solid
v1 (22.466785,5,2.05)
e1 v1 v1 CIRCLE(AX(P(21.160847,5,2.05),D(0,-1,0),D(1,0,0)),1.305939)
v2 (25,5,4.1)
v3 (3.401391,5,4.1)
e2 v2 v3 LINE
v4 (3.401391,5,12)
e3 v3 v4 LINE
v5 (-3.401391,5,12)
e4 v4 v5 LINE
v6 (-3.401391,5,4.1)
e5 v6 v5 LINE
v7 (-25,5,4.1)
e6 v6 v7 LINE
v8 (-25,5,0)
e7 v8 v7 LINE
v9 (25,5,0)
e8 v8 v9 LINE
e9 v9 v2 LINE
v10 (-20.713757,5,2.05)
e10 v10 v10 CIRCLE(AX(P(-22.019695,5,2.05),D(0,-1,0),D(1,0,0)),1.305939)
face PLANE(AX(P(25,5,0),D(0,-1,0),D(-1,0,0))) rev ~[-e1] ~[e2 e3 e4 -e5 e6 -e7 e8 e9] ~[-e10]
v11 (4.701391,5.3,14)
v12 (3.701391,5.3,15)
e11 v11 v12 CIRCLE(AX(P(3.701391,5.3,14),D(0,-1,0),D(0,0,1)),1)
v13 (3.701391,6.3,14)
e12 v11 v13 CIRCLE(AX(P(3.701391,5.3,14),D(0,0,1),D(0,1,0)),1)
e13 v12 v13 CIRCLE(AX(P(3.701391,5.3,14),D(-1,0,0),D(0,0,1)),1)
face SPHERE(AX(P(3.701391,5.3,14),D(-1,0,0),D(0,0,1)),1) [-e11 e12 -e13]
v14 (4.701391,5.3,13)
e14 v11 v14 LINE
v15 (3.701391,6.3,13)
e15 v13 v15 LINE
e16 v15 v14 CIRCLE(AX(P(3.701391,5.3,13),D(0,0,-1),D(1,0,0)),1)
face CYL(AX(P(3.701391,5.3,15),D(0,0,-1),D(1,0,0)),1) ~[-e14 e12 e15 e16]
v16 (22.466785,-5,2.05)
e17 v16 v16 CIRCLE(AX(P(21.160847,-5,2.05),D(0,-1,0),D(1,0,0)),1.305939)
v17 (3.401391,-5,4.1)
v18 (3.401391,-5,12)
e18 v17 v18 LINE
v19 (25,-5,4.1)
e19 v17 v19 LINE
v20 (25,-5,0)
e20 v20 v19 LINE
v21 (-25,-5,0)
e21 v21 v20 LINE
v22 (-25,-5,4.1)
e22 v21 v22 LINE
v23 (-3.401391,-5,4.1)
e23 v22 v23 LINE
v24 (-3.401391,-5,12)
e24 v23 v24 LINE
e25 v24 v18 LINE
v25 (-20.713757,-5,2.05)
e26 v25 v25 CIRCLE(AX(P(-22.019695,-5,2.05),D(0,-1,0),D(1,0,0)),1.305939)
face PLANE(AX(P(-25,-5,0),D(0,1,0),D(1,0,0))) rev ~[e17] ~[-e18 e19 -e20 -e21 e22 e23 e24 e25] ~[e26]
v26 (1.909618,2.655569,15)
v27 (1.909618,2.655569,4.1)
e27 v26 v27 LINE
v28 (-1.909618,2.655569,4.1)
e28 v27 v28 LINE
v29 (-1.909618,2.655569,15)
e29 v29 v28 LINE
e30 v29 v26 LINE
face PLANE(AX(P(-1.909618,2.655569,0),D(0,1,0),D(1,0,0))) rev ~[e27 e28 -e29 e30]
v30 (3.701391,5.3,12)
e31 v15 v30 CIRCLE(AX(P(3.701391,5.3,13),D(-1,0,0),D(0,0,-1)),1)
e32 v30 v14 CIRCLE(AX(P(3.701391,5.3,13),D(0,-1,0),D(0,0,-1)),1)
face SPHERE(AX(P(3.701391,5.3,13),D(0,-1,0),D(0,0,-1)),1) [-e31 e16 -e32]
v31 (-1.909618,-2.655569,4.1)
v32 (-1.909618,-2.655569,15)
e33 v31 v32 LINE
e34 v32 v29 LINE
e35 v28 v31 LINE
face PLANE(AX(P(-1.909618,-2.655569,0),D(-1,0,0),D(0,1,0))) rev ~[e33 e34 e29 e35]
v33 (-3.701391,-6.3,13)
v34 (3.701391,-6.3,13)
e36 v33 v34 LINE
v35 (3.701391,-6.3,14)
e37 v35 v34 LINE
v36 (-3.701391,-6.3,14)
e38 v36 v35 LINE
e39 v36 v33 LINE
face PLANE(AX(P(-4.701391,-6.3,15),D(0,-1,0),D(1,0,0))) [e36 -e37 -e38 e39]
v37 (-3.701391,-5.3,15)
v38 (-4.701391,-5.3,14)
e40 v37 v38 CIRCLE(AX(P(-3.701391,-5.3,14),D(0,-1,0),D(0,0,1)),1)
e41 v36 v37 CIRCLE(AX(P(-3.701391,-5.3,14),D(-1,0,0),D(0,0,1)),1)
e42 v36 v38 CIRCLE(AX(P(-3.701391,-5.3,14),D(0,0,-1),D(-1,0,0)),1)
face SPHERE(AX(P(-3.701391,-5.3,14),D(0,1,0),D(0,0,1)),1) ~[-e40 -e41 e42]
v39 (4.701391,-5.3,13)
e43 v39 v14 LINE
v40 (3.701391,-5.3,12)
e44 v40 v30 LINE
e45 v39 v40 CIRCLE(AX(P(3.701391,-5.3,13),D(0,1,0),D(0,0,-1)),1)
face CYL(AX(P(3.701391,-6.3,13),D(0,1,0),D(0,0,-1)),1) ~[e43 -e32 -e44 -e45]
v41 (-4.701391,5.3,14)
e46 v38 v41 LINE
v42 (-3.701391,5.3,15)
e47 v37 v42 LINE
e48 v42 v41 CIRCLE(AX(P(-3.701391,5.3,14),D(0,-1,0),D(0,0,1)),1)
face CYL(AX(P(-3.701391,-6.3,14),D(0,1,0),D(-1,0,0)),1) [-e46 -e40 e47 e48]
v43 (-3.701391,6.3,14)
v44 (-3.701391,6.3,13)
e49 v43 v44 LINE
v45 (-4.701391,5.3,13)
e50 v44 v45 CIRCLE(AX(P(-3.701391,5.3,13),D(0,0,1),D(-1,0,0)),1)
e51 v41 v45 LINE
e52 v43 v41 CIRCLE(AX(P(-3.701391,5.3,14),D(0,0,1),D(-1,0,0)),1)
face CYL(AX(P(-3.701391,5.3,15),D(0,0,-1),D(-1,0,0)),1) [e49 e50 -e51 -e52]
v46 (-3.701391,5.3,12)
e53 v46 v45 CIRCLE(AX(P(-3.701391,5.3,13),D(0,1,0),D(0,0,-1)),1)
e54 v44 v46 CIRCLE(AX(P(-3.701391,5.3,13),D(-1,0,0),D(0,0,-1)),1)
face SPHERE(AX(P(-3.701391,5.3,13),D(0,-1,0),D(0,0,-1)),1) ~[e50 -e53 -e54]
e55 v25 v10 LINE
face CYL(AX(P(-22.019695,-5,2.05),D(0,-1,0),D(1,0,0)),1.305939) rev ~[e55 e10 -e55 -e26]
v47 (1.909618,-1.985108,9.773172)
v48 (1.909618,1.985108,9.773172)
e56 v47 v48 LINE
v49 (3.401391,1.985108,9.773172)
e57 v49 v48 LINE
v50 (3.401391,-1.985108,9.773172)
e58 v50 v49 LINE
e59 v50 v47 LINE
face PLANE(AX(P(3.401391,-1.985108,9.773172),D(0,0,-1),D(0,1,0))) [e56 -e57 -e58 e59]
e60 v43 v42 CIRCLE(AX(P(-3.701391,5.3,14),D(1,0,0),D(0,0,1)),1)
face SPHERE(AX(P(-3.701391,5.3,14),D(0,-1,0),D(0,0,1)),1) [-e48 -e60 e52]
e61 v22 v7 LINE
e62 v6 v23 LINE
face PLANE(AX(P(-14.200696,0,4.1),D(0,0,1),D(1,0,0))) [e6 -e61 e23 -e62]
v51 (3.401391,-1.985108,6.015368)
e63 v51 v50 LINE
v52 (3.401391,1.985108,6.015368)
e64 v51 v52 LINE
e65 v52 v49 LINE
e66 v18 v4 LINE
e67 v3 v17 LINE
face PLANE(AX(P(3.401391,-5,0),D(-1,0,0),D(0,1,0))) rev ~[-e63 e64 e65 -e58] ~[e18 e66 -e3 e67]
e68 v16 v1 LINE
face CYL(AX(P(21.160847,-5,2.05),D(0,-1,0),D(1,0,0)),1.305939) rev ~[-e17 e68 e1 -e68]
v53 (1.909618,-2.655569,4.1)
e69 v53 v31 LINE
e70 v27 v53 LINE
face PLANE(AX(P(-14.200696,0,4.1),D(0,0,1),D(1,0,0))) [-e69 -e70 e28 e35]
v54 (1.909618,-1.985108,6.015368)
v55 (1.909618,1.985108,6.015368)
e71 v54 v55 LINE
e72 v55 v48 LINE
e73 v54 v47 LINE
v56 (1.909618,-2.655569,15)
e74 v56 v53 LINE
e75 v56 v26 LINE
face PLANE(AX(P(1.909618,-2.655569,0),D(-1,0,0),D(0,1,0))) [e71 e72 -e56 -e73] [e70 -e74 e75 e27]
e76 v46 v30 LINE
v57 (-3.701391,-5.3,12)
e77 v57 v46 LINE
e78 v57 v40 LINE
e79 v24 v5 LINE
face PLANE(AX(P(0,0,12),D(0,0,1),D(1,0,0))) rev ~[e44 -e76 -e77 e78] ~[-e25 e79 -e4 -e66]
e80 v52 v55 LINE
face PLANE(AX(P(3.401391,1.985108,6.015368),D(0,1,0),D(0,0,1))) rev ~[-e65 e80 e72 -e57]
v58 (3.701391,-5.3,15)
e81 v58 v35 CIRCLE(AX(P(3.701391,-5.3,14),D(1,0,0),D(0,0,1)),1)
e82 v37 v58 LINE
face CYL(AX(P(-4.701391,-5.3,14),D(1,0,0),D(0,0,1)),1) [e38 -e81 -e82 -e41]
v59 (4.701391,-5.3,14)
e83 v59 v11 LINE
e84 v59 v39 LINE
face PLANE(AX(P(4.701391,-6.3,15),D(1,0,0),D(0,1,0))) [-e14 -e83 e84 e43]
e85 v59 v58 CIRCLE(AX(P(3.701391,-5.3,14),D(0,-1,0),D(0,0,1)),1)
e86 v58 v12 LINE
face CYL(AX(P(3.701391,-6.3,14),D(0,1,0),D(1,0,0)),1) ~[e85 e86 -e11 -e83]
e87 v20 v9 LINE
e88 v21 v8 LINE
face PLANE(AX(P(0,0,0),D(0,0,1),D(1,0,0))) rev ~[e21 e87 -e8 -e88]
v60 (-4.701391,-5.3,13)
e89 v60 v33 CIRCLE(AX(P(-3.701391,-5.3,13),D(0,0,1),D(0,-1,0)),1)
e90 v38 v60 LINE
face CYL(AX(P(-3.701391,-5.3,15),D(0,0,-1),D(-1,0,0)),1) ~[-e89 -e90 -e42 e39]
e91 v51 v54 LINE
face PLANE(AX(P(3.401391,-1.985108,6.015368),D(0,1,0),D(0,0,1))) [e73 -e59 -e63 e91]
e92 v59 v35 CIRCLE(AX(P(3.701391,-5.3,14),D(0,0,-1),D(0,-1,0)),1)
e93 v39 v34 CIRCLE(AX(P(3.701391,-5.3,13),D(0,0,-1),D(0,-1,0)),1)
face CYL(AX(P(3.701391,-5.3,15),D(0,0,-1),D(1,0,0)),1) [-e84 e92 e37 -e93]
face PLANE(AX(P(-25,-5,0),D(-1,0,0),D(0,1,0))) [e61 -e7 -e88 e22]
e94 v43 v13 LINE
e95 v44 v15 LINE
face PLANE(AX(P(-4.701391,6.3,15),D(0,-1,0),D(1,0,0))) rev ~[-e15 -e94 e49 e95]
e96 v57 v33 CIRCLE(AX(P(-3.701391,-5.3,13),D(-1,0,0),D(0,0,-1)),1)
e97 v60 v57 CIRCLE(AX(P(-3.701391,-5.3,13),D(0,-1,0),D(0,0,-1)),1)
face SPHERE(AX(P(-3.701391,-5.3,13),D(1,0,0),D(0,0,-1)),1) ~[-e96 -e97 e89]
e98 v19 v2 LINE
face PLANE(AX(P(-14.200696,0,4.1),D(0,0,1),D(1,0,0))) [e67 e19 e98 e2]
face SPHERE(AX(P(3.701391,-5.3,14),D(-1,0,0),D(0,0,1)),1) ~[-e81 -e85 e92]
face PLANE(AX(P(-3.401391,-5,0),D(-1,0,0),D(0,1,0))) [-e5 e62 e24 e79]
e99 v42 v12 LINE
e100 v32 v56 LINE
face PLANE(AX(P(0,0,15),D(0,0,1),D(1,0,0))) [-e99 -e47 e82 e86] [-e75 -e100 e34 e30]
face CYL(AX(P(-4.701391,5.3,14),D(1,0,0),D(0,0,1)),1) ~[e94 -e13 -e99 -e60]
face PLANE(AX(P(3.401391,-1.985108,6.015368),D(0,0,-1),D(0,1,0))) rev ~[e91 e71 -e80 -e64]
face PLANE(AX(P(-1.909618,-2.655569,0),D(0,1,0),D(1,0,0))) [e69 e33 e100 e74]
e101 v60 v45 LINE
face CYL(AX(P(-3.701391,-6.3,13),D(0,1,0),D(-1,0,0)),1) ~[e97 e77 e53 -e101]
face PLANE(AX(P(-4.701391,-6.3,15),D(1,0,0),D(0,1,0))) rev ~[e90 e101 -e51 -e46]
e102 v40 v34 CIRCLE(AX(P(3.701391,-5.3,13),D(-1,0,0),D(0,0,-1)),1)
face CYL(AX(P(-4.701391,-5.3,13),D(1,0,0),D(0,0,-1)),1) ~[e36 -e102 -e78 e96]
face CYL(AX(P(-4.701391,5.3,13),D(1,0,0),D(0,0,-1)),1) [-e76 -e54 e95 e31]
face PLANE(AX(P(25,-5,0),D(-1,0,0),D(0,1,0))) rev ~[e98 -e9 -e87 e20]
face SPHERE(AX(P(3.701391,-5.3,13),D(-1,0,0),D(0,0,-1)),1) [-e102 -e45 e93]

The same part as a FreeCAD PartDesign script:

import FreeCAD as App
import Part
import Sketcher
from FreeCAD import Vector


def edges_at(feature, points):
    """Names of the edges that pass closest to the given points."""
    edges = feature.Shape.Edges
    near = lambda p: min(range(len(edges)), key=lambda i: edges[i].distToShape(Part.Vertex(*p))[0])
    return sorted({f"Edge{near(p) + 1}" for p in points})


def add_polygon(sketch, points):
    """Adds a closed chain of lines whose ends are joined by coincident constraints."""
    first, n = sketch.GeometryCount, len(points)
    for a, b in zip(points, points[1:] + points[:1]):
        sketch.addGeometry(Part.LineSegment(App.Vector(*a, 0), App.Vector(*b, 0)), False)
    for i in range(n):
        sketch.addConstraint(Sketcher.Constraint("Coincident", first + i, 2, first + (i + 1) % n, 1))

doc = App.newDocument("Part")
body = doc.addObject("PartDesign::Body", "Body")

# Sketch on XY plane
sketch1 = body.newObject("Sketcher::SketchObject", "Sketch")
sketch1.AttachmentSupport = (doc.getObject("XY_Plane"), [""])
sketch1.MapMode = "FlatFace"
add_polygon(sketch1, [(-25, 5), (-25, -5), (25, -5), (25, 5)])  # lines 0-3
sketch1.addConstraint(Sketcher.Constraint("Vertical", 0))
sketch1.addConstraint(Sketcher.Constraint("Horizontal", 1))
sketch1.addConstraint(Sketcher.Constraint("Vertical", 2))
sketch1.addConstraint(Sketcher.Constraint("Horizontal", 3))
sketch1.addConstraint(Sketcher.Constraint("Symmetric", 0, 2, 2, 2, -1, 1))
sketch1.addConstraint(Sketcher.Constraint("DistanceX", 1, 1, 1, 2, 50.0))
sketch1.addConstraint(Sketcher.Constraint("DistanceY", 0, 2, 0, 1, 10.0))
pad1 = body.newObject("PartDesign::Pad", "Pad")
pad1.Profile = sketch1
pad1.Length = 4.1

# Sketch on XY plane
sketch2 = body.newObject("Sketcher::SketchObject", "Sketch001")
sketch2.AttachmentSupport = (doc.getObject("XY_Plane"), [""])
sketch2.MapMode = "FlatFace"
add_polygon(sketch2, [(-3.4, 5), (-3.4, -5), (3.4, -5), (3.4, 5)])  # lines 0-3
add_polygon(sketch2, [(1.9, -2.7), (-1.9, -2.7), (-1.9, 2.7), (1.9, 2.7)])  # lines 4-7
sketch2.addConstraint(Sketcher.Constraint("Vertical", 0))
sketch2.addConstraint(Sketcher.Constraint("Horizontal", 1))
sketch2.addConstraint(Sketcher.Constraint("Vertical", 2))
sketch2.addConstraint(Sketcher.Constraint("Horizontal", 3))
sketch2.addConstraint(Sketcher.Constraint("Horizontal", 4))
sketch2.addConstraint(Sketcher.Constraint("Vertical", 5))
sketch2.addConstraint(Sketcher.Constraint("Horizontal", 6))
sketch2.addConstraint(Sketcher.Constraint("Vertical", 7))
sketch2.addConstraint(Sketcher.Constraint("Symmetric", 0, 2, 2, 2, -1, 1))
sketch2.addConstraint(Sketcher.Constraint("Symmetric", 4, 2, 6, 2, -1, 1))
sketch2.addConstraint(Sketcher.Constraint("DistanceY", 0, 2, 0, 1, 10.0))
sketch2.addConstraint(Sketcher.Constraint("DistanceY", 5, 1, 5, 2, 5.311139))
sketch2.addConstraint(Sketcher.Constraint("DistanceX", 1, 1, 1, 2, 6.802783))
sketch2.addConstraint(Sketcher.Constraint("DistanceX", 4, 2, 4, 1, 3.819236))
pad2 = body.newObject("PartDesign::Pad", "Pad001")
pad2.Profile = sketch2
pad2.Length = 15

# Sketch on YZ plane
sketch3 = body.newObject("Sketcher::SketchObject", "Sketch002")
sketch3.AttachmentSupport = (doc.getObject("YZ_Plane"), [""])
sketch3.MapMode = "FlatFace"
sketch3.AttachmentOffset = App.Placement(Vector(0, 0, 3.401391), App.Rotation())
add_polygon(sketch3, [(-2, 9.8), (-2, 6), (2, 6), (2, 9.8)])  # lines 0-3
sketch3.addConstraint(Sketcher.Constraint("Vertical", 0))
sketch3.addConstraint(Sketcher.Constraint("Horizontal", 1))
sketch3.addConstraint(Sketcher.Constraint("Vertical", 2))
sketch3.addConstraint(Sketcher.Constraint("Horizontal", 3))
sketch3.addConstraint(Sketcher.Constraint("DistanceX", 1, 1, 1, 2, 3.970216))
sketch3.addConstraint(Sketcher.Constraint("DistanceY", 0, 2, 0, 1, 3.757804))
sketch3.addConstraint(Sketcher.Constraint("DistanceX", 0, 2, -1, 1, 1.985108))
sketch3.addConstraint(Sketcher.Constraint("DistanceY", -1, 1, 0, 2, 6.015368))
pocket1 = body.newObject("PartDesign::Pocket", "Pocket")
pocket1.Profile = sketch3
pocket1.Length = 1.491774

# Sketch on XZ plane
sketch4 = body.newObject("Sketcher::SketchObject", "Sketch003")
sketch4.AttachmentSupport = (doc.getObject("XZ_Plane"), [""])
sketch4.MapMode = "FlatFace"
sketch4.AttachmentOffset = App.Placement(Vector(0, 0, 5), App.Rotation())
sketch4.addGeometry(Part.Circle(Vector(-22, 2, 0), Vector(0, 0, 1), 1.3), False)
sketch4.addGeometry(Part.Circle(Vector(21.2, 2, 0), Vector(0, 0, 1), 1.3), False)
sketch4.addConstraint(Sketcher.Constraint("Equal", 0, 1))
sketch4.addConstraint(Sketcher.Constraint("Horizontal", 0, 3, 1, 3))
sketch4.addConstraint(Sketcher.Constraint("DistanceY", -1, 1, 0, 3, 2.05))
sketch4.addConstraint(Sketcher.Constraint("Diameter", 0, 2.611877))
sketch4.addConstraint(Sketcher.Constraint("DistanceX", 0, 3, -1, 1, 22.019695))
sketch4.addConstraint(Sketcher.Constraint("DistanceX", -1, 1, 1, 3, 21.160847))
pocket2 = body.newObject("PartDesign::Pocket", "Pocket001")
pocket2.Profile = sketch4
pocket2.Type = "ThroughAll"

# Sketch on XY plane
sketch5 = body.newObject("Sketcher::SketchObject", "Sketch004")
sketch5.AttachmentSupport = (doc.getObject("XY_Plane"), [""])
sketch5.MapMode = "FlatFace"
sketch5.AttachmentOffset = App.Placement(Vector(0, 0, 15), App.Rotation())
add_polygon(sketch5, [(-4.7, 6.3), (-4.7, -6.3), (4.7, -6.3), (4.7, 6.3)])  # lines 0-3
add_polygon(sketch5, [(1.9, -2.7), (-1.9, -2.7), (-1.9, 2.7), (1.9, 2.7)])  # lines 4-7
sketch5.addConstraint(Sketcher.Constraint("Vertical", 0))
sketch5.addConstraint(Sketcher.Constraint("Horizontal", 1))
sketch5.addConstraint(Sketcher.Constraint("Vertical", 2))
sketch5.addConstraint(Sketcher.Constraint("Horizontal", 3))
sketch5.addConstraint(Sketcher.Constraint("Horizontal", 4))
sketch5.addConstraint(Sketcher.Constraint("Vertical", 5))
sketch5.addConstraint(Sketcher.Constraint("Horizontal", 6))
sketch5.addConstraint(Sketcher.Constraint("Vertical", 7))
sketch5.addConstraint(Sketcher.Constraint("Symmetric", 0, 2, 2, 2, -1, 1))
sketch5.addConstraint(Sketcher.Constraint("Symmetric", 4, 2, 6, 2, -1, 1))
sketch5.addConstraint(Sketcher.Constraint("DistanceY", 0, 2, 0, 1, 12.6))
sketch5.addConstraint(Sketcher.Constraint("DistanceY", 5, 1, 5, 2, 5.311139))
sketch5.addConstraint(Sketcher.Constraint("DistanceX", 1, 1, 1, 2, 9.402783))
sketch5.addConstraint(Sketcher.Constraint("DistanceX", 4, 2, 4, 1, 3.819236))
pad3 = body.newObject("PartDesign::Pad", "Pad002")
pad3.Profile = sketch5
pad3.Length = 3
pad3.Reversed = True
doc.recompute()

fillet = body.newObject("PartDesign::Fillet", "Fillet")
fillet.Base = (pad3, edges_at(pad3, [
    (-4.701, 0, 15),
    (0, -6.3, 15),
    (0, -6.3, 12),
    (4.701, 0, 12),
    (0, 6.3, 15),
    (-4.701, 0, 12),
    (0, 6.3, 12),
    (4.701, 0, 15),
    (4.701, -6.3, 13.5),
    (4.701, 6.3, 13.5),
    (-4.701, 6.3, 13.5),
    (-4.701, -6.3, 13.5),
]))
fillet.Radius = 1

doc.recompute()
